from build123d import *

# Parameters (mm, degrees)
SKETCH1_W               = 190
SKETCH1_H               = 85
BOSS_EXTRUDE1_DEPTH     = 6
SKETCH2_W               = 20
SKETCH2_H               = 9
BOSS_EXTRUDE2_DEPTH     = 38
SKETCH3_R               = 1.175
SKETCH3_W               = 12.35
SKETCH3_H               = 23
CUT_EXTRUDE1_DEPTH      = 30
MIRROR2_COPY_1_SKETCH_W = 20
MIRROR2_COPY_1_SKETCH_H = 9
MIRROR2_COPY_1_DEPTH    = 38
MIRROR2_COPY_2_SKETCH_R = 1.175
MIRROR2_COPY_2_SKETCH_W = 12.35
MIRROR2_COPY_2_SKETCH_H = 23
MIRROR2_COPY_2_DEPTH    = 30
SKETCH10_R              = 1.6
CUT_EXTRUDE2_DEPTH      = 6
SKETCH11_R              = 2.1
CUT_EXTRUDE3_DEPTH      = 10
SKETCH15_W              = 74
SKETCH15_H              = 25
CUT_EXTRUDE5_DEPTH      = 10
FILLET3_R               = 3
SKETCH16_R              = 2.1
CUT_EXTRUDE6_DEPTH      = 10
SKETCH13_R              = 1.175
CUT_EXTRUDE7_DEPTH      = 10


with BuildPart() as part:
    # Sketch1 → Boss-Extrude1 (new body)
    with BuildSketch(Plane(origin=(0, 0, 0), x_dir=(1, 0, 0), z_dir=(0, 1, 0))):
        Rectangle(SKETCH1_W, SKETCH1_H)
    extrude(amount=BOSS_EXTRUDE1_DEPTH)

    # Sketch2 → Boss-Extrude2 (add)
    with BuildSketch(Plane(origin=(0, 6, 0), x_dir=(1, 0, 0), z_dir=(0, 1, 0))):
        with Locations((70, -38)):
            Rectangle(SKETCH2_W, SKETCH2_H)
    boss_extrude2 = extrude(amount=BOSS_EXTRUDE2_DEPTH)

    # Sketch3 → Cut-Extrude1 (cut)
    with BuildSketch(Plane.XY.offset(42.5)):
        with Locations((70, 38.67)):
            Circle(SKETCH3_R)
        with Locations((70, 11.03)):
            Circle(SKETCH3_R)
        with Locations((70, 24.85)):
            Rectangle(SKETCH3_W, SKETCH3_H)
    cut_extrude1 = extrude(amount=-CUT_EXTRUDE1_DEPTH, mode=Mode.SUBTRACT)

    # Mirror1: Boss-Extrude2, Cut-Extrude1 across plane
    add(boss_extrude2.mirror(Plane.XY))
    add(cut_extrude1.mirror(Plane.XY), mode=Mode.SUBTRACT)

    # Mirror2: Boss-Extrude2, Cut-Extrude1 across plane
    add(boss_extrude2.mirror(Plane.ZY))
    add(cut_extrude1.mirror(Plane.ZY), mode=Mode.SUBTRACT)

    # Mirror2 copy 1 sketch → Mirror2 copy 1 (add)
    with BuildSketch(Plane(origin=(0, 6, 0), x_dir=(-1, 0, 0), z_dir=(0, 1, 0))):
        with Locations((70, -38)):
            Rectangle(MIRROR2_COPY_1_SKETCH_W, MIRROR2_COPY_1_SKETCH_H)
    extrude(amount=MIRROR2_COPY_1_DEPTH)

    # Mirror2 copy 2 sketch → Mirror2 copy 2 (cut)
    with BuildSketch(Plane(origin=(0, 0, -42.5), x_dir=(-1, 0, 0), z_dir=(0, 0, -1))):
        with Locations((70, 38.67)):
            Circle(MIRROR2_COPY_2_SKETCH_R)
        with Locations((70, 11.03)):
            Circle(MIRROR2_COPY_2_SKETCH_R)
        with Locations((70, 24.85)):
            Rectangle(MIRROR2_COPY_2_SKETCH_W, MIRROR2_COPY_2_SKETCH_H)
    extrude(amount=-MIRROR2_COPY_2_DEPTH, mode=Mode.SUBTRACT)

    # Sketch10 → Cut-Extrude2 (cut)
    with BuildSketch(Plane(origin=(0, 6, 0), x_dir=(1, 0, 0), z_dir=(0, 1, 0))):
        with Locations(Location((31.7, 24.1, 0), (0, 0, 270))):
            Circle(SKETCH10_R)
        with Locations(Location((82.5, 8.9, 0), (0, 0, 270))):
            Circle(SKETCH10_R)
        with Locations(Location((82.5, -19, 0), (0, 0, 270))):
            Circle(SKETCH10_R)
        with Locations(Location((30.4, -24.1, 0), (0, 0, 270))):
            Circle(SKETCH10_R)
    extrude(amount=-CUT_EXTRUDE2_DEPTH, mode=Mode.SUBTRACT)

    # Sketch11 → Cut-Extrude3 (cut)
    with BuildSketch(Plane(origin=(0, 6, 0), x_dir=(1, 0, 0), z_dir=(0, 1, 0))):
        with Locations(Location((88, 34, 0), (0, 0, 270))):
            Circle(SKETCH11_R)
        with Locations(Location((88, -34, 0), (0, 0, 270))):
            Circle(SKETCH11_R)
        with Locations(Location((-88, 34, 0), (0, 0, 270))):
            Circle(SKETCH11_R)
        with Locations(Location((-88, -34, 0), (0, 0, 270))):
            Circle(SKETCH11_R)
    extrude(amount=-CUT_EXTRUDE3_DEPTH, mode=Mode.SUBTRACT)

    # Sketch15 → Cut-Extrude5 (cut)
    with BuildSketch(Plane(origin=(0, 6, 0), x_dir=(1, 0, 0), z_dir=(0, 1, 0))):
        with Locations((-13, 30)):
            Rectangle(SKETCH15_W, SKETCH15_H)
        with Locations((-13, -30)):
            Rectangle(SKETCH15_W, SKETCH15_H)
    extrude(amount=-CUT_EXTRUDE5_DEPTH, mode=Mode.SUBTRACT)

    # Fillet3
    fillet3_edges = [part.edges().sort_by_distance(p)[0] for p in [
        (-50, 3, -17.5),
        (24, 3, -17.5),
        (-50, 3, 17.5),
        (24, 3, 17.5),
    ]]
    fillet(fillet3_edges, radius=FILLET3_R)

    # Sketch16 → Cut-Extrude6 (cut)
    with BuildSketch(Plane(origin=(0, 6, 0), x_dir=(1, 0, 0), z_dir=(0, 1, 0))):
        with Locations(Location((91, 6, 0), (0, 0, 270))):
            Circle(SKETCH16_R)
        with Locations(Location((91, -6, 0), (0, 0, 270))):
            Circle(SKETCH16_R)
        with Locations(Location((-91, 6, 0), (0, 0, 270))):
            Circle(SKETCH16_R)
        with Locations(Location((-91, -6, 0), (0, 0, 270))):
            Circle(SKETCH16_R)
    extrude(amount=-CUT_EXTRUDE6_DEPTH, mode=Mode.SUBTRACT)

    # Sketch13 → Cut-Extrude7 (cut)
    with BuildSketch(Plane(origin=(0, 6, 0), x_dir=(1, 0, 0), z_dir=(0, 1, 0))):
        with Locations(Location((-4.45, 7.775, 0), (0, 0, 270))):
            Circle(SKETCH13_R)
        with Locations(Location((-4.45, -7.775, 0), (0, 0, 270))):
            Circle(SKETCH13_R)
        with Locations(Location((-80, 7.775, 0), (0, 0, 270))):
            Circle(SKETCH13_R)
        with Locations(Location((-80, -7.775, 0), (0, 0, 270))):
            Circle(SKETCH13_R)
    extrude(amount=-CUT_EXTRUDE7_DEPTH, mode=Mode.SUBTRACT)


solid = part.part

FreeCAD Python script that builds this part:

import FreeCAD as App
import Part
import Sketcher
Q = App.Units.Quantity


def edges_at(feature, points):
    """Names of the edges that pass closest to the given points."""
    edges = feature.Shape.Edges
    near = lambda p: min(range(len(edges)), key=lambda i: edges[i].distToShape(Part.Vertex(*p))[0])
    return sorted({f"Edge{near(p) + 1}" for p in points})


def add_polygon(sketch, points):
    """Adds a closed chain of lines whose ends are joined by coincident constraints."""
    first, n = sketch.GeometryCount, len(points)
    for a, b in zip(points, points[1:] + points[:1]):
        sketch.addGeometry(Part.LineSegment(App.Vector(*a, 0), App.Vector(*b, 0)), False)
    for i in range(n):
        sketch.addConstraint(Sketcher.Constraint("Coincident", first + i, 2, first + (i + 1) % n, 1))

doc = App.newDocument("Part")
params = doc.addObject("Spreadsheet::Sheet", "Params")
for row, (alias, value) in enumerate([
    ("sketch1_width", "190 mm"),
    ("sketch1_height", "85 mm"),
    ("pad1_length", "6 mm"),
    ("sketch2_width", "20 mm"),
    ("sketch2_height", "9 mm"),
    ("pad2_length", "38 mm"),
    ("sketch3_diameter", "2.35 mm"),
    ("sketch3_height", "23 mm"),
    ("sketch3_width", "12.35 mm"),
    ("pocket1_length", "30 mm"),
    ("sketch4_width", "20 mm"),
    ("sketch4_height", "9 mm"),
    ("pad3_length", "38 mm"),
    ("sketch5_diameter", "2.35 mm"),
    ("sketch5_height", "23 mm"),
    ("sketch5_width", "12.35 mm"),
    ("pocket2_length", "30 mm"),
    ("sketch6_diameter", "3.2 mm"),
    ("pocket3_length", "6 mm"),
    ("sketch7_diameter", "4.2 mm"),
    ("pocket4_length", "10 mm"),
    ("sketch8_width", "74 mm"),
    ("sketch8_height", "25 mm"),
    ("pocket5_length", "10 mm"),
    ("fillet_radius", "3 mm"),
    ("sketch9_diameter", "4.2 mm"),
    ("pocket6_length", "10 mm"),
    ("sketch10_diameter", "2.35 mm"),
    ("pocket7_length", "10 mm"),
], start=1):
    params.set(f"A{row}", alias)
    params.set(f"B{row}", "=" + value)
    params.setAlias(f"B{row}", alias)

body = doc.addObject("PartDesign::Body", "Body")

# Sketch on XZ plane
sketch1 = body.newObject("Sketcher::SketchObject", "Sketch")
sketch1.AttachmentSupport = (doc.getObject("XZ_Plane"), [""])
sketch1.MapMode = "FlatFace"
add_polygon(sketch1, [(-95, -42), (-95, 42), (95, 42), (95, -42)])  # lines 0-3
sketch1.addConstraint(Sketcher.Constraint("Vertical", 0))
sketch1.addConstraint(Sketcher.Constraint("Horizontal", 1))
sketch1.addConstraint(Sketcher.Constraint("Vertical", 2))
sketch1.addConstraint(Sketcher.Constraint("Horizontal", 3))
sketch1.addConstraint(Sketcher.Constraint("Symmetric", 0, 2, 2, 2, -1, 1))
sketch1.addConstraint(Sketcher.Constraint("DistanceX", 1, 1, 1, 2, Q("190 mm")))
sketch1.addConstraint(Sketcher.Constraint("DistanceY", 0, 1, 0, 2, Q("85 mm")))
sketch1.setExpression("Constraints[9]", "Params.sketch1_width")
sketch1.setExpression("Constraints[10]", "Params.sketch1_height")
pad1 = body.newObject("PartDesign::Pad", "Pad")
pad1.Profile = sketch1
pad1.setExpression("Length", "Params.pad1_length")
pad1.Reversed = True

# Sketch on XZ plane
sketch2 = body.newObject("Sketcher::SketchObject", "Sketch001")
sketch2.AttachmentSupport = (doc.getObject("XZ_Plane"), [""])
sketch2.MapMode = "FlatFace"
sketch2.AttachmentOffset = App.Placement(App.Vector(0, 0, -6), App.Rotation())
add_polygon(sketch2, [(60, 34), (60, 42), (80, 42), (80, 34)])  # lines 0-3
sketch2.addConstraint(Sketcher.Constraint("Vertical", 0))
sketch2.addConstraint(Sketcher.Constraint("Horizontal", 1))
sketch2.addConstraint(Sketcher.Constraint("Vertical", 2))
sketch2.addConstraint(Sketcher.Constraint("Horizontal", 3))
sketch2.addConstraint(Sketcher.Constraint("DistanceX", 1, 1, 1, 2, Q("20 mm")))
sketch2.addConstraint(Sketcher.Constraint("DistanceY", 0, 1, 0, 2, Q("9 mm")))
sketch2.addConstraint(Sketcher.Constraint("DistanceX", -1, 1, 0, 2, Q("60 mm")))
sketch2.addConstraint(Sketcher.Constraint("DistanceY", -1, 1, 0, 2, Q("42.5 mm")))
sketch2.setExpression("Constraints[8]", "Params.sketch2_width")
sketch2.setExpression("Constraints[9]", "Params.sketch2_height")
pad2 = body.newObject("PartDesign::Pad", "Pad001")
pad2.Profile = sketch2
pad2.setExpression("Length", "Params.pad2_length")
pad2.Reversed = True

# Sketch on XY plane
sketch3 = body.newObject("Sketcher::SketchObject", "Sketch002")
sketch3.AttachmentSupport = (doc.getObject("XY_Plane"), [""])
sketch3.MapMode = "FlatFace"
sketch3.AttachmentOffset = App.Placement(App.Vector(0, 0, 42.5), App.Rotation())
sketch3.addGeometry(Part.Circle(App.Vector(70, 38.7, 0), App.Vector(0, 0, 1), 1.2), False)  # 0
sketch3.addGeometry(Part.Circle(App.Vector(70, 11, 0), App.Vector(0, 0, 1), 1.2), False)  # 1
add_polygon(sketch3, [(63.8, 36.4), (63.8, 13.3), (76.2, 13.3), (76.2, 36.4)])  # lines 2-5
sketch3.addConstraint(Sketcher.Constraint("Vertical", 2))
sketch3.addConstraint(Sketcher.Constraint("Horizontal", 3))
sketch3.addConstraint(Sketcher.Constraint("Vertical", 4))
sketch3.addConstraint(Sketcher.Constraint("Horizontal", 5))
sketch3.addConstraint(Sketcher.Constraint("Equal", 0, 1))
sketch3.addConstraint(Sketcher.Constraint("Vertical", 0, 3, 1, 3))
sketch3.addConstraint(Sketcher.Constraint("Diameter", 0, Q("2.35 mm")))
sketch3.addConstraint(Sketcher.Constraint("DistanceY", 2, 2, 2, 1, Q("23 mm")))
sketch3.addConstraint(Sketcher.Constraint("DistanceX", -1, 1, 0, 3, Q("70 mm")))
sketch3.addConstraint(Sketcher.Constraint("DistanceX", 3, 1, 3, 2, Q("12.35 mm")))
sketch3.addConstraint(Sketcher.Constraint("DistanceY", -1, 1, 0, 3, Q("38.67 mm")))
sketch3.addConstraint(Sketcher.Constraint("DistanceY", -1, 1, 1, 3, Q("11.03 mm")))
sketch3.addConstraint(Sketcher.Constraint("DistanceY", -1, 1, 2, 2, Q("13.35 mm")))
sketch3.addConstraint(Sketcher.Constraint("DistanceX", -1, 1, 2, 2, Q("63.825 mm")))
sketch3.setExpression("Constraints[10]", "Params.sketch3_diameter")
sketch3.setExpression("Constraints[11]", "Params.sketch3_height")
sketch3.setExpression("Constraints[13]", "Params.sketch3_width")
pocket1 = body.newObject("PartDesign::Pocket", "Pocket")
pocket1.Profile = sketch3
pocket1.setExpression("Length", "Params.pocket1_length")
doc.recompute()

mirrored = body.newObject("PartDesign::Mirrored", "Mirrored")
mirrored.Originals = [pad2, pocket1]
mirrored.MirrorPlane = (doc.getObject("XY_Plane"), [""])
body.Tip = mirrored
doc.recompute()

mirrored2 = body.newObject("PartDesign::Mirrored", "Mirrored001")
mirrored2.Originals = [pad2, pocket1]
mirrored2.MirrorPlane = (doc.getObject("YZ_Plane"), [""])
body.Tip = mirrored2

# Sketch on XZ plane
sketch4 = body.newObject("Sketcher::SketchObject", "Sketch003")
sketch4.AttachmentSupport = (doc.getObject("XZ_Plane"), [""])
sketch4.MapMode = "FlatFace"
sketch4.AttachmentOffset = App.Placement(App.Vector(0, 0, -6), App.Rotation())
add_polygon(sketch4, [(-60, -34), (-60, -42), (-80, -42), (-80, -34)])  # lines 0-3
sketch4.addConstraint(Sketcher.Constraint("Vertical", 0))
sketch4.addConstraint(Sketcher.Constraint("Horizontal", 1))
sketch4.addConstraint(Sketcher.Constraint("Vertical", 2))
sketch4.addConstraint(Sketcher.Constraint("Horizontal", 3))
sketch4.addConstraint(Sketcher.Constraint("DistanceX", 1, 2, 1, 1, Q("20 mm")))
sketch4.addConstraint(Sketcher.Constraint("DistanceY", 0, 2, 0, 1, Q("9 mm")))
sketch4.addConstraint(Sketcher.Constraint("DistanceX", 0, 2, -1, 1, Q("60 mm")))
sketch4.addConstraint(Sketcher.Constraint("DistanceY", 0, 2, -1, 1, Q("42.5 mm")))
sketch4.setExpression("Constraints[8]", "Params.sketch4_width")
sketch4.setExpression("Constraints[9]", "Params.sketch4_height")
pad3 = body.newObject("PartDesign::Pad", "Pad002")
pad3.Profile = sketch4
pad3.setExpression("Length", "Params.pad3_length")
pad3.Reversed = True

# Sketch on XY plane
sketch5 = body.newObject("Sketcher::SketchObject", "Sketch004")
sketch5.AttachmentSupport = (doc.getObject("XY_Plane"), [""])
sketch5.MapMode = "FlatFace"
sketch5.AttachmentOffset = App.Placement(App.Vector(0, 0, -42.5), App.Rotation())
sketch5.addGeometry(Part.Circle(App.Vector(-70, 38.7, 0), App.Vector(0, 0, 1), 1.2), False)  # 0
sketch5.addGeometry(Part.Circle(App.Vector(-70, 11, 0), App.Vector(0, 0, 1), 1.2), False)  # 1
add_polygon(sketch5, [(-63.8, 36.4), (-63.8, 13.3), (-76.2, 13.3), (-76.2, 36.4)])  # lines 2-5
sketch5.addConstraint(Sketcher.Constraint("Vertical", 2))
sketch5.addConstraint(Sketcher.Constraint("Horizontal", 3))
sketch5.addConstraint(Sketcher.Constraint("Vertical", 4))
sketch5.addConstraint(Sketcher.Constraint("Horizontal", 5))
sketch5.addConstraint(Sketcher.Constraint("Equal", 0, 1))
sketch5.addConstraint(Sketcher.Constraint("Vertical", 0, 3, 1, 3))
sketch5.addConstraint(Sketcher.Constraint("Diameter", 0, Q("2.35 mm")))
sketch5.addConstraint(Sketcher.Constraint("DistanceY", 2, 2, 2, 1, Q("23 mm")))
sketch5.addConstraint(Sketcher.Constraint("DistanceX", 0, 3, -1, 1, Q("70 mm")))
sketch5.addConstraint(Sketcher.Constraint("DistanceX", 3, 2, 3, 1, Q("12.35 mm")))
sketch5.addConstraint(Sketcher.Constraint("DistanceY", -1, 1, 0, 3, Q("38.67 mm")))
sketch5.addConstraint(Sketcher.Constraint("DistanceY", -1, 1, 1, 3, Q("11.03 mm")))
sketch5.addConstraint(Sketcher.Constraint("DistanceY", -1, 1, 2, 2, Q("13.35 mm")))
sketch5.addConstraint(Sketcher.Constraint("DistanceX", 2, 2, -1, 1, Q("63.825 mm")))
sketch5.setExpression("Constraints[10]", "Params.sketch5_diameter")
sketch5.setExpression("Constraints[11]", "Params.sketch5_height")
sketch5.setExpression("Constraints[13]", "Params.sketch5_width")
pocket2 = body.newObject("PartDesign::Pocket", "Pocket001")
pocket2.Profile = sketch5
pocket2.setExpression("Length", "Params.pocket2_length")
pocket2.Reversed = True

# Sketch on XZ plane
sketch6 = body.newObject("Sketcher::SketchObject", "Sketch005")
sketch6.AttachmentSupport = (doc.getObject("XZ_Plane"), [""])
sketch6.MapMode = "FlatFace"
sketch6.AttachmentOffset = App.Placement(App.Vector(0, 0, -6), App.Rotation())
sketch6.addGeometry(Part.Circle(App.Vector(31.7, -24.1, 0), App.Vector(0, 0, 1), 1.6), False)
sketch6.addGeometry(Part.Circle(App.Vector(82.5, -8.9, 0), App.Vector(0, 0, 1), 1.6), False)
sketch6.addGeometry(Part.Circle(App.Vector(82.5, 19, 0), App.Vector(0, 0, 1), 1.6), False)
sketch6.addGeometry(Part.Circle(App.Vector(30.4, 24.1, 0), App.Vector(0, 0, 1), 1.6), False)
sketch6.addConstraint(Sketcher.Constraint("Equal", 0, 1))
sketch6.addConstraint(Sketcher.Constraint("Equal", 1, 2))
sketch6.addConstraint(Sketcher.Constraint("Equal", 2, 3))
sketch6.addConstraint(Sketcher.Constraint("Vertical", 1, 3, 2, 3))
sketch6.addConstraint(Sketcher.Constraint("Diameter", 0, Q("3.2 mm")))
sketch6.addConstraint(Sketcher.Constraint("DistanceY", -1, 1, 2, 3, Q("19 mm")))
sketch6.addConstraint(Sketcher.Constraint("DistanceY", 1, 3, 3, 3, Q("33 mm")))
sketch6.addConstraint(Sketcher.Constraint("DistanceX", -1, 1, 0, 3, Q("31.7 mm")))
sketch6.addConstraint(Sketcher.Constraint("DistanceY", 0, 3, -1, 1, Q("24.1 mm")))
sketch6.addConstraint(Sketcher.Constraint("DistanceX", -1, 1, 1, 3, Q("82.5 mm")))
sketch6.addConstraint(Sketcher.Constraint("DistanceY", 1, 3, -1, 1, Q("8.9 mm")))
sketch6.addConstraint(Sketcher.Constraint("DistanceX", -1, 1, 3, 3, Q("30.4 mm")))
sketch6.setExpression("Constraints[4]", "Params.sketch6_diameter")
pocket3 = body.newObject("PartDesign::Pocket", "Pocket002")
pocket3.Profile = sketch6
pocket3.setExpression("Length", "Params.pocket3_length")
pocket3.Reversed = True

# Sketch on XZ plane
sketch7 = body.newObject("Sketcher::SketchObject", "Sketch006")
sketch7.AttachmentSupport = (doc.getObject("XZ_Plane"), [""])
sketch7.MapMode = "FlatFace"
sketch7.AttachmentOffset = App.Placement(App.Vector(0, 0, -6), App.Rotation())
sketch7.addGeometry(Part.Circle(App.Vector(88, -34, 0), App.Vector(0, 0, 1), 2.1), False)
sketch7.addGeometry(Part.Circle(App.Vector(88, 34, 0), App.Vector(0, 0, 1), 2.1), False)
sketch7.addGeometry(Part.Circle(App.Vector(-88, -34, 0), App.Vector(0, 0, 1), 2.1), False)
sketch7.addGeometry(Part.Circle(App.Vector(-88, 34, 0), App.Vector(0, 0, 1), 2.1), False)
sketch7.addConstraint(Sketcher.Constraint("Equal", 0, 1))
sketch7.addConstraint(Sketcher.Constraint("Equal", 1, 2))
sketch7.addConstraint(Sketcher.Constraint("Equal", 2, 3))
sketch7.addConstraint(Sketcher.Constraint("Symmetric", 1, 3, 2, 3, -1, 1))
sketch7.addConstraint(Sketcher.Constraint("Symmetric", 0, 3, 3, 3, -1, 1))
sketch7.addConstraint(Sketcher.Constraint("Symmetric", 0, 3, 2, 3, -2))
sketch7.addConstraint(Sketcher.Constraint("Diameter", 0, Q("4.2 mm")))
sketch7.addConstraint(Sketcher.Constraint("DistanceX", -1, 1, 0, 3, Q("88 mm")))
sketch7.addConstraint(Sketcher.Constraint("DistanceY", 0, 3, -1, 1, Q("34 mm")))
sketch7.setExpression("Constraints[6]", "Params.sketch7_diameter")
pocket4 = body.newObject("PartDesign::Pocket", "Pocket003")
pocket4.Profile = sketch7
pocket4.setExpression("Length", "Params.pocket4_length")
pocket4.Reversed = True

# Sketch on XZ plane
sketch8 = body.newObject("Sketcher::SketchObject", "Sketch007")
sketch8.AttachmentSupport = (doc.getObject("XZ_Plane"), [""])
sketch8.MapMode = "FlatFace"
sketch8.AttachmentOffset = App.Placement(App.Vector(0, 0, -6), App.Rotation())
add_polygon(sketch8, [(-50, -42), (-50, -18), (24, -18), (24, -42)])  # lines 0-3
add_polygon(sketch8, [(-50, 18), (-50, 42), (24, 42), (24, 18)])  # lines 4-7
sketch8.addConstraint(Sketcher.Constraint("Vertical", 0))
sketch8.addConstraint(Sketcher.Constraint("Horizontal", 1))
sketch8.addConstraint(Sketcher.Constraint("Vertical", 2))
sketch8.addConstraint(Sketcher.Constraint("Horizontal", 3))
sketch8.addConstraint(Sketcher.Constraint("Vertical", 4))
sketch8.addConstraint(Sketcher.Constraint("Horizontal", 5))
sketch8.addConstraint(Sketcher.Constraint("Vertical", 6))
sketch8.addConstraint(Sketcher.Constraint("Horizontal", 7))
sketch8.addConstraint(Sketcher.Constraint("Symmetric", 3, 2, 4, 2, -1))
sketch8.addConstraint(Sketcher.Constraint("Symmetric", 1, 2, 6, 2, -1))
sketch8.addConstraint(Sketcher.Constraint("DistanceX", 1, 1, 1, 2, Q("74 mm")))
sketch8.addConstraint(Sketcher.Constraint("DistanceY", 0, 1, 0, 2, Q("25 mm")))
sketch8.addConstraint(Sketcher.Constraint("DistanceX", 0, 2, -1, 1, Q("50 mm")))
sketch8.addConstraint(Sketcher.Constraint("DistanceY", 0, 2, 4, 2, Q("60 mm")))
sketch8.setExpression("Constraints[18]", "Params.sketch8_width")
sketch8.setExpression("Constraints[19]", "Params.sketch8_height")
pocket5 = body.newObject("PartDesign::Pocket", "Pocket004")
pocket5.Profile = sketch8
pocket5.setExpression("Length", "Params.pocket5_length")
pocket5.Reversed = True
doc.recompute()

fillet = body.newObject("PartDesign::Fillet", "Fillet")
fillet.Base = (pocket5, edges_at(pocket5, [
    (-50, 3, -17.5),
    (24, 3, -17.5),
    (-50, 3, 17.5),
    (24, 3, 17.5),
]))
fillet.setExpression("Radius", "Params.fillet_radius")

# Sketch on XZ plane
sketch9 = body.newObject("Sketcher::SketchObject", "Sketch008")
sketch9.AttachmentSupport = (doc.getObject("XZ_Plane"), [""])
sketch9.MapMode = "FlatFace"
sketch9.AttachmentOffset = App.Placement(App.Vector(0, 0, -6), App.Rotation())
sketch9.addGeometry(Part.Circle(App.Vector(91, -6, 0), App.Vector(0, 0, 1), 2.1), False)
sketch9.addGeometry(Part.Circle(App.Vector(91, 6, 0), App.Vector(0, 0, 1), 2.1), False)
sketch9.addGeometry(Part.Circle(App.Vector(-91, -6, 0), App.Vector(0, 0, 1), 2.1), False)
sketch9.addGeometry(Part.Circle(App.Vector(-91, 6, 0), App.Vector(0, 0, 1), 2.1), False)
sketch9.addConstraint(Sketcher.Constraint("Equal", 0, 1))
sketch9.addConstraint(Sketcher.Constraint("Equal", 1, 2))
sketch9.addConstraint(Sketcher.Constraint("Equal", 2, 3))
sketch9.addConstraint(Sketcher.Constraint("Symmetric", 1, 3, 2, 3, -1, 1))
sketch9.addConstraint(Sketcher.Constraint("Symmetric", 0, 3, 3, 3, -1, 1))
sketch9.addConstraint(Sketcher.Constraint("Symmetric", 0, 3, 2, 3, -2))
sketch9.addConstraint(Sketcher.Constraint("Diameter", 0, Q("4.2 mm")))
sketch9.addConstraint(Sketcher.Constraint("DistanceX", -1, 1, 0, 3, Q("91 mm")))
sketch9.addConstraint(Sketcher.Constraint("DistanceY", 0, 3, -1, 1, Q("6 mm")))
sketch9.setExpression("Constraints[6]", "Params.sketch9_diameter")
pocket6 = body.newObject("PartDesign::Pocket", "Pocket005")
pocket6.Profile = sketch9
pocket6.setExpression("Length", "Params.pocket6_length")
pocket6.Reversed = True

# Sketch on XZ plane
sketch10 = body.newObject("Sketcher::SketchObject", "Sketch009")
sketch10.AttachmentSupport = (doc.getObject("XZ_Plane"), [""])
sketch10.MapMode = "FlatFace"
sketch10.AttachmentOffset = App.Placement(App.Vector(0, 0, -6), App.Rotation())
sketch10.addGeometry(Part.Circle(App.Vector(-4.5, -7.8, 0), App.Vector(0, 0, 1), 1.2), False)
sketch10.addGeometry(Part.Circle(App.Vector(-4.5, 7.8, 0), App.Vector(0, 0, 1), 1.2), False)
sketch10.addGeometry(Part.Circle(App.Vector(-80, -7.8, 0), App.Vector(0, 0, 1), 1.2), False)
sketch10.addGeometry(Part.Circle(App.Vector(-80, 7.8, 0), App.Vector(0, 0, 1), 1.2), False)
sketch10.addConstraint(Sketcher.Constraint("Equal", 0, 1))
sketch10.addConstraint(Sketcher.Constraint("Equal", 1, 2))
sketch10.addConstraint(Sketcher.Constraint("Equal", 2, 3))
sketch10.addConstraint(Sketcher.Constraint("Symmetric", 0, 3, 1, 3, -1))
sketch10.addConstraint(Sketcher.Constraint("Symmetric", 2, 3, 3, 3, -1))
sketch10.addConstraint(Sketcher.Constraint("Horizontal", 0, 3, 2, 3))
sketch10.addConstraint(Sketcher.Constraint("Diameter", 0, Q("2.35 mm")))
sketch10.addConstraint(Sketcher.Constraint("DistanceX", 2, 3, -1, 1, Q("80 mm")))
sketch10.addConstraint(Sketcher.Constraint("DistanceX", 0, 3, -1, 1, Q("4.45 mm")))
sketch10.addConstraint(Sketcher.Constraint("DistanceY", 0, 3, 1, 3, Q("15.55 mm")))
sketch10.setExpression("Constraints[6]", "Params.sketch10_diameter")
pocket7 = body.newObject("PartDesign::Pocket", "Pocket006")
pocket7.Profile = sketch10
pocket7.setExpression("Length", "Params.pocket7_length")
pocket7.Reversed = True

doc.recompute()
